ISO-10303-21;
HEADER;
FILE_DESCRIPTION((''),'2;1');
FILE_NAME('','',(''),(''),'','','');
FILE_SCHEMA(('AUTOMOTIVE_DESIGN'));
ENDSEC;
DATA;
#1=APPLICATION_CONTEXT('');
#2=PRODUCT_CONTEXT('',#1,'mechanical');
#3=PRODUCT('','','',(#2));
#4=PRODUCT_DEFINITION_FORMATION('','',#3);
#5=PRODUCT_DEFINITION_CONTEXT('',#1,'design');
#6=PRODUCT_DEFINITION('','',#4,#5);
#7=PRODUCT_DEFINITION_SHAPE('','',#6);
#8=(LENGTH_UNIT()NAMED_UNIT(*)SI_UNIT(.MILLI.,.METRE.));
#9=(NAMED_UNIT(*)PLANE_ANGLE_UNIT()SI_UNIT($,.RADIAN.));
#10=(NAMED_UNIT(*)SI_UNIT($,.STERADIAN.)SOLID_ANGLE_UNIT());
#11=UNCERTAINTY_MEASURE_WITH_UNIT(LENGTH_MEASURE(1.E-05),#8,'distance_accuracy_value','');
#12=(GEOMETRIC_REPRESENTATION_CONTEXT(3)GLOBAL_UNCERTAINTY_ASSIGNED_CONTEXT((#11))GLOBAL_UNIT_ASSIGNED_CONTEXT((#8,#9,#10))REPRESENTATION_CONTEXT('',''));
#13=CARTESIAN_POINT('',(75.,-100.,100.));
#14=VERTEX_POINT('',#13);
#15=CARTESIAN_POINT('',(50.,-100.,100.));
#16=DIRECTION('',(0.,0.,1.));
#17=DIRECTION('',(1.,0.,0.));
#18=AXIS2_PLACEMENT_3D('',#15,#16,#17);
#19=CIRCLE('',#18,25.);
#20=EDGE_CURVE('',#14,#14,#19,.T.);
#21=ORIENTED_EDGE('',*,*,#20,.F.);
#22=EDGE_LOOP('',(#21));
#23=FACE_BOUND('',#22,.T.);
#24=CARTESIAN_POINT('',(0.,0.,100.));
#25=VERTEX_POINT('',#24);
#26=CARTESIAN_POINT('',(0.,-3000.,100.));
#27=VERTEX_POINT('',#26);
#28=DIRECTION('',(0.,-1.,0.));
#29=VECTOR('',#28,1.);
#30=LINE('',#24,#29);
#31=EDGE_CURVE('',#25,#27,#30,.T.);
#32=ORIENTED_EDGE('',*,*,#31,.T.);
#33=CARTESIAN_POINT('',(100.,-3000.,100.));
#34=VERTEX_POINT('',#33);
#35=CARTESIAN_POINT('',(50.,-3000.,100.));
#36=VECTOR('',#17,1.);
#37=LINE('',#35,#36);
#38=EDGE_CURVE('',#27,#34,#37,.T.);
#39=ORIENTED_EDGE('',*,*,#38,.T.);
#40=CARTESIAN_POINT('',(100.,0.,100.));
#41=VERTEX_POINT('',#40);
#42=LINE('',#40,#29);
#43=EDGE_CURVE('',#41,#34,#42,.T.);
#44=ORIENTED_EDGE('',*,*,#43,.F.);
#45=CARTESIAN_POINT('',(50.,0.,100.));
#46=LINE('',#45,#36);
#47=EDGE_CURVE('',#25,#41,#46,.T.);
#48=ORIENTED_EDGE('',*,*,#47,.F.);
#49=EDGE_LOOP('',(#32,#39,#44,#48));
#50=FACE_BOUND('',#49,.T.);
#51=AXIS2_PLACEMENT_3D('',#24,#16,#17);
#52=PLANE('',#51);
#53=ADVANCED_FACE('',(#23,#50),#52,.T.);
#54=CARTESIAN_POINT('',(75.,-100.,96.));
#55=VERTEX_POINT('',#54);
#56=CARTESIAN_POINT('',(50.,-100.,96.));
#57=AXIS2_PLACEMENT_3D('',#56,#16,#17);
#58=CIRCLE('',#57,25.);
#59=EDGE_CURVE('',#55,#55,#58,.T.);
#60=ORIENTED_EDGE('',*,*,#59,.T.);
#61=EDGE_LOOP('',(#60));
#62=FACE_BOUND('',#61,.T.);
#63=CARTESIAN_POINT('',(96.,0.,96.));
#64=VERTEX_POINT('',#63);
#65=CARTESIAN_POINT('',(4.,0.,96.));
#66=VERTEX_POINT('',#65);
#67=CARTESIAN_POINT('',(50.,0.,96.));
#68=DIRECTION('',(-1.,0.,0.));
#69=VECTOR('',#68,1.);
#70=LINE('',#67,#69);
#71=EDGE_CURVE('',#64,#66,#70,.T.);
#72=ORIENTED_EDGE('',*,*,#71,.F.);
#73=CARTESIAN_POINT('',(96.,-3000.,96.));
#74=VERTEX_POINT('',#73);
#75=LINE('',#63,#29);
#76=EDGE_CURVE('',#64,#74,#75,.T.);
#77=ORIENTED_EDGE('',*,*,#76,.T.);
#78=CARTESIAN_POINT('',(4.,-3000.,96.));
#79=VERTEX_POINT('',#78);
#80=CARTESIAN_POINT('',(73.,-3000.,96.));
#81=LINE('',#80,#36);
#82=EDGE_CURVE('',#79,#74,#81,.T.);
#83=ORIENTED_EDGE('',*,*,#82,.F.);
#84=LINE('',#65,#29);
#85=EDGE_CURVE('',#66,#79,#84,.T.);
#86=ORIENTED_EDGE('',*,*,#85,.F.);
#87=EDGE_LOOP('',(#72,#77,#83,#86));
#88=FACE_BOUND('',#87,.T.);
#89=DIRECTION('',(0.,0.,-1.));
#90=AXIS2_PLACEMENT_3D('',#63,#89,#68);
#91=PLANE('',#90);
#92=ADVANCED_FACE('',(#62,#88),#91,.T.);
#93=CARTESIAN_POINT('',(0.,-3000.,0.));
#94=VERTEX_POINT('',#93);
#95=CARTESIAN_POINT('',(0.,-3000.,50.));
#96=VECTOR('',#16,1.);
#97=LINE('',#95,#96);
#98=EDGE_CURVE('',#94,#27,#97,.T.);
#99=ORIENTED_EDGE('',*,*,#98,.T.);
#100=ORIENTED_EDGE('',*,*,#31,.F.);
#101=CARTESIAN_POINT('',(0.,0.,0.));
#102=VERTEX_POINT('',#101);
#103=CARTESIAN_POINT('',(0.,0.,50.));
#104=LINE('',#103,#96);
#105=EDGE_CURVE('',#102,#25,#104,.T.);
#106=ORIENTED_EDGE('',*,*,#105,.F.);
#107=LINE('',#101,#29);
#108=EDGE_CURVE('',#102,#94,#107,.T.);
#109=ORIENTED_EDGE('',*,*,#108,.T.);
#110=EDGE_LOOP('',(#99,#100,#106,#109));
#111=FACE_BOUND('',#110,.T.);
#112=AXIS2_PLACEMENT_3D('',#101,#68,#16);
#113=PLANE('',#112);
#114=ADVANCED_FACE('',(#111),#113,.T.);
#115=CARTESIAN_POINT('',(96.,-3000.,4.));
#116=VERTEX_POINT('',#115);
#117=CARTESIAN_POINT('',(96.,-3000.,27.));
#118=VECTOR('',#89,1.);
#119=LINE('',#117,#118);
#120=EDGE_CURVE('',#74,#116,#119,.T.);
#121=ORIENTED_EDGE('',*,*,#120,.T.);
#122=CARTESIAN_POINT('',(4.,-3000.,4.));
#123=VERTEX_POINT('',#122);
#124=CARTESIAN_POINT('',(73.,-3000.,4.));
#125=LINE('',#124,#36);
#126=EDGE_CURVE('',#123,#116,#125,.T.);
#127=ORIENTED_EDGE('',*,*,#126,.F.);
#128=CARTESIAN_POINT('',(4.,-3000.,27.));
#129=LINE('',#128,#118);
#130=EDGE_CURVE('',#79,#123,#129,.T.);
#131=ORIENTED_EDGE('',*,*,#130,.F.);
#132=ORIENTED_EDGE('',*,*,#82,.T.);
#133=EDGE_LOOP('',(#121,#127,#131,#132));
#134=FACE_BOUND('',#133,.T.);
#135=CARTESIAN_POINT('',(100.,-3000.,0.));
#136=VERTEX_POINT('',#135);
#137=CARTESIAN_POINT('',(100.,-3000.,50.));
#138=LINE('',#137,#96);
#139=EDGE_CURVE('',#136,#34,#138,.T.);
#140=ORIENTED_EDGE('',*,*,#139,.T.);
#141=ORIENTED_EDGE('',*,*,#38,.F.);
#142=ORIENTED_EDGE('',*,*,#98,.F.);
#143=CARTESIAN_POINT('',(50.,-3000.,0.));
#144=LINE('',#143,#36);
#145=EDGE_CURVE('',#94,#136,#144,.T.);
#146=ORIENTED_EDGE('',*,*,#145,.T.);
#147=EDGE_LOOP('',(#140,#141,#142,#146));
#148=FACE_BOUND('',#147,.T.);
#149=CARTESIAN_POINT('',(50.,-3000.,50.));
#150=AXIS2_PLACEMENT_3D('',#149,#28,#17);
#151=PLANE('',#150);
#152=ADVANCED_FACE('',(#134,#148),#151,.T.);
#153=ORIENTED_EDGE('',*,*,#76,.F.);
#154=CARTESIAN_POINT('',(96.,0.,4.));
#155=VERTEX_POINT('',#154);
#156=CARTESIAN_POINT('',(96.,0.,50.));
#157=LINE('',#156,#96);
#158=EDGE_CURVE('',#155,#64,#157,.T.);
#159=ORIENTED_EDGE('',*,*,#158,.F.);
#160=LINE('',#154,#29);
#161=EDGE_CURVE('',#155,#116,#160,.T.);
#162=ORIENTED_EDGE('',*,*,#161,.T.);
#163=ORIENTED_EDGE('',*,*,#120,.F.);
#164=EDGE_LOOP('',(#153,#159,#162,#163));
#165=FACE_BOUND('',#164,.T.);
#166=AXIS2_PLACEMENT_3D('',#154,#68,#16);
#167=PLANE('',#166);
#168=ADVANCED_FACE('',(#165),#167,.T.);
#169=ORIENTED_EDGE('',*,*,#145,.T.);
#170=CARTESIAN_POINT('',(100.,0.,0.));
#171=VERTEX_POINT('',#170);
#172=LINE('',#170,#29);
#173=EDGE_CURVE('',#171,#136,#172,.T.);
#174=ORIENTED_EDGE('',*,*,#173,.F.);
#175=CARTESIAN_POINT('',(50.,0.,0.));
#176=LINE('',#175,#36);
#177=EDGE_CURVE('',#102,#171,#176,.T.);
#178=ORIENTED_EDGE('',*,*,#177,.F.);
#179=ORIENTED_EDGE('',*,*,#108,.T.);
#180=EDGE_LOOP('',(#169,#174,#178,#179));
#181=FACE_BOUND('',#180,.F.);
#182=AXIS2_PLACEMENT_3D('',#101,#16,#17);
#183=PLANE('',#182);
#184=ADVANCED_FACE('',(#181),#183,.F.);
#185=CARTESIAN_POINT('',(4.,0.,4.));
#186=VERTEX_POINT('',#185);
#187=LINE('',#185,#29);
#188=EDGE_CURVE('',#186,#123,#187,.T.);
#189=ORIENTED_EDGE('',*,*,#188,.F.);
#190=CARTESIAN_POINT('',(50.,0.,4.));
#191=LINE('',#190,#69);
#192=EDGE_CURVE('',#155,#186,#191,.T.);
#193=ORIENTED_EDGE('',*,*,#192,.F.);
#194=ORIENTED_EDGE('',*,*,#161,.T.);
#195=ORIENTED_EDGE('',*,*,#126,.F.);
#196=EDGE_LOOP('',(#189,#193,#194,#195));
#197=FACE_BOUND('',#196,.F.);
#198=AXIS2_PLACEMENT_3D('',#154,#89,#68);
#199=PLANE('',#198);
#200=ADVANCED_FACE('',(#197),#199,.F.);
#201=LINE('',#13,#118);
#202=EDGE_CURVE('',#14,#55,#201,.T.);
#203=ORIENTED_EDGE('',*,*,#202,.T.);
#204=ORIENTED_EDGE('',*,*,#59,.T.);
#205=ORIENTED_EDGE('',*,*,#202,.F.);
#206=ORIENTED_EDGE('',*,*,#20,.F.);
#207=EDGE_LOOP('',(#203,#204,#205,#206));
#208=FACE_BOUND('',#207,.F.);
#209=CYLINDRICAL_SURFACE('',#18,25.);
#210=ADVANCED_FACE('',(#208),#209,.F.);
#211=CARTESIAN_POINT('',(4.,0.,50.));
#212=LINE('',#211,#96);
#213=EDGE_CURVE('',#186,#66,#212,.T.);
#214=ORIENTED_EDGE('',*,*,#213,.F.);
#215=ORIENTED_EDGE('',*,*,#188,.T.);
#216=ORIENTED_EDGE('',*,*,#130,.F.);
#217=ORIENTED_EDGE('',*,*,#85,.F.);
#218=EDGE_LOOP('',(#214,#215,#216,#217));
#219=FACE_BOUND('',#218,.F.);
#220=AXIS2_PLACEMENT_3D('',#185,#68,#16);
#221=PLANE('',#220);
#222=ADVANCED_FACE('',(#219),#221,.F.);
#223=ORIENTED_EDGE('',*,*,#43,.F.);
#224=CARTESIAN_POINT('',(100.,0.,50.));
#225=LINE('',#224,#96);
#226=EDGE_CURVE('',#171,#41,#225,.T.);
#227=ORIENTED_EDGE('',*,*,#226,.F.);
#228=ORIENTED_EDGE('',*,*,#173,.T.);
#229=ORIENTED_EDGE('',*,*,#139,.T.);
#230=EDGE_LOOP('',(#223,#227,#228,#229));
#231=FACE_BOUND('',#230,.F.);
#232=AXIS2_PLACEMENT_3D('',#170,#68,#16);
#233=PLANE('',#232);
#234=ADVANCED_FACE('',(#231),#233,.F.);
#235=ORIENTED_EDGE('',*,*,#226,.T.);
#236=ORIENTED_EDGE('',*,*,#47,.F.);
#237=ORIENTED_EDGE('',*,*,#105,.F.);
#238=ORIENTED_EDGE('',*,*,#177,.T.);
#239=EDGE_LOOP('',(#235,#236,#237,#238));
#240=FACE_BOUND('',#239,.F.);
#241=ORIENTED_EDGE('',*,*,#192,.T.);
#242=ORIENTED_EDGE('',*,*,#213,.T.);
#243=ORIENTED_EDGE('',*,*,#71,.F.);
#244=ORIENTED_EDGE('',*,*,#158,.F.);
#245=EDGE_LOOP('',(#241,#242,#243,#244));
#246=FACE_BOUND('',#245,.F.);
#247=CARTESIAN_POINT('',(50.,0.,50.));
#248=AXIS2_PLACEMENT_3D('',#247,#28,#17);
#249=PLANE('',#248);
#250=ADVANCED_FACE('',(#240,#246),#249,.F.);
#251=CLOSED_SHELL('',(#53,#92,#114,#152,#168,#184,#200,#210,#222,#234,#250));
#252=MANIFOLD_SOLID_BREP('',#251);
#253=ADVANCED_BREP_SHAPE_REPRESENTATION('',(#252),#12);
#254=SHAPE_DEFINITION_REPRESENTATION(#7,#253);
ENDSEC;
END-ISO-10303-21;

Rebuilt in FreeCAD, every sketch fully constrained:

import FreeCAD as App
import Part
import Sketcher

V = App.Vector

doc = App.newDocument("Part")
body = doc.addObject("PartDesign::Body", "Body")

# Sketch on XZ plane
sketch1 = doc.addObject("Sketcher::SketchObject", "Sketch")
body.addObject(sketch1)
sketch1.AttachmentSupport = (doc.XZ_Plane, [""])
sketch1.MapMode = "FlatFace"
sketch1.addGeometry(Part.LineSegment(V(0, 100, 0), V(0, 0, 0)), False)
sketch1.addGeometry(Part.LineSegment(V(0, 0, 0), V(100, 0, 0)), False)
sketch1.addGeometry(Part.LineSegment(V(100, 0, 0), V(100, 100, 0)), False)
sketch1.addGeometry(Part.LineSegment(V(100, 100, 0), V(0, 100, 0)), False)
sketch1.addConstraint(Sketcher.Constraint("Coincident", 0, 2, 1, 1))
sketch1.addConstraint(Sketcher.Constraint("Coincident", 1, 2, 2, 1))
sketch1.addConstraint(Sketcher.Constraint("Coincident", 2, 2, 3, 1))
sketch1.addConstraint(Sketcher.Constraint("Coincident", 3, 2, 0, 1))
sketch1.addConstraint(Sketcher.Constraint("Vertical", 0))
sketch1.addConstraint(Sketcher.Constraint("Horizontal", 1))
sketch1.addConstraint(Sketcher.Constraint("Vertical", 2))
sketch1.addConstraint(Sketcher.Constraint("Horizontal", 3))
sketch1.addConstraint(Sketcher.Constraint("Coincident", 0, 2, -1, 1))
sketch1.addConstraint(Sketcher.Constraint("Equal", 3, 0))
sketch1.addConstraint(Sketcher.Constraint("DistanceX", 1, 1, 1, 2, 100.0))
pad1 = doc.addObject("PartDesign::Pad", "Pad")
body.addObject(pad1)
pad1.Profile = sketch1
pad1.Length = 3000

# Sketch on XZ plane
sketch2 = doc.addObject("Sketcher::SketchObject", "Sketch001")
body.addObject(sketch2)
sketch2.AttachmentSupport = (doc.XZ_Plane, [""])
sketch2.MapMode = "FlatFace"
sketch2.addGeometry(Part.LineSegment(V(96, 96, 0), V(96, 4, 0)), False)
sketch2.addGeometry(Part.LineSegment(V(96, 4, 0), V(4, 4, 0)), False)
sketch2.addGeometry(Part.LineSegment(V(4, 4, 0), V(4, 96, 0)), False)
sketch2.addGeometry(Part.LineSegment(V(4, 96, 0), V(96, 96, 0)), False)
sketch2.addConstraint(Sketcher.Constraint("Coincident", 0, 2, 1, 1))
sketch2.addConstraint(Sketcher.Constraint("Coincident", 1, 2, 2, 1))
sketch2.addConstraint(Sketcher.Constraint("Coincident", 2, 2, 3, 1))
sketch2.addConstraint(Sketcher.Constraint("Coincident", 3, 2, 0, 1))
sketch2.addConstraint(Sketcher.Constraint("Vertical", 0))
sketch2.addConstraint(Sketcher.Constraint("Horizontal", 1))
sketch2.addConstraint(Sketcher.Constraint("Vertical", 2))
sketch2.addConstraint(Sketcher.Constraint("Horizontal", 3))
sketch2.addConstraint(Sketcher.Constraint("Equal", 3, 0))
sketch2.addConstraint(Sketcher.Constraint("DistanceX", 1, 2, 1, 1, 92.0))
sketch2.addConstraint(Sketcher.Constraint("DistanceX", -1, 1, 0, 2, 96.0))
sketch2.addConstraint(Sketcher.Constraint("DistanceY", -1, 1, 0, 2, 4.0))
pocket1 = doc.addObject("PartDesign::Pocket", "Pocket")
body.addObject(pocket1)
pocket1.Profile = sketch2
pocket1.Type = "ThroughAll"
pocket1.Reversed = True

# Sketch on XY plane
sketch3 = doc.addObject("Sketcher::SketchObject", "Sketch002")
body.addObject(sketch3)
sketch3.AttachmentSupport = (doc.XY_Plane, [""])
sketch3.MapMode = "FlatFace"
sketch3.AttachmentOffset = App.Placement(V(0, 0, 100), App.Rotation())
sketch3.addGeometry(Part.Circle(V(50, -100, 0), V(0, 0, 1), 25), False)
sketch3.addConstraint(Sketcher.Constraint("Diameter", 0, 50.0))
sketch3.addConstraint(Sketcher.Constraint("DistanceX", -1, 1, 0, 3, 50.0))
sketch3.addConstraint(Sketcher.Constraint("DistanceY", 0, 3, -1, 1, 100.0))
pocket2 = doc.addObject("PartDesign::Pocket", "Pocket001")
body.addObject(pocket2)
pocket2.Profile = sketch3
pocket2.Length = 4

doc.recompute()
